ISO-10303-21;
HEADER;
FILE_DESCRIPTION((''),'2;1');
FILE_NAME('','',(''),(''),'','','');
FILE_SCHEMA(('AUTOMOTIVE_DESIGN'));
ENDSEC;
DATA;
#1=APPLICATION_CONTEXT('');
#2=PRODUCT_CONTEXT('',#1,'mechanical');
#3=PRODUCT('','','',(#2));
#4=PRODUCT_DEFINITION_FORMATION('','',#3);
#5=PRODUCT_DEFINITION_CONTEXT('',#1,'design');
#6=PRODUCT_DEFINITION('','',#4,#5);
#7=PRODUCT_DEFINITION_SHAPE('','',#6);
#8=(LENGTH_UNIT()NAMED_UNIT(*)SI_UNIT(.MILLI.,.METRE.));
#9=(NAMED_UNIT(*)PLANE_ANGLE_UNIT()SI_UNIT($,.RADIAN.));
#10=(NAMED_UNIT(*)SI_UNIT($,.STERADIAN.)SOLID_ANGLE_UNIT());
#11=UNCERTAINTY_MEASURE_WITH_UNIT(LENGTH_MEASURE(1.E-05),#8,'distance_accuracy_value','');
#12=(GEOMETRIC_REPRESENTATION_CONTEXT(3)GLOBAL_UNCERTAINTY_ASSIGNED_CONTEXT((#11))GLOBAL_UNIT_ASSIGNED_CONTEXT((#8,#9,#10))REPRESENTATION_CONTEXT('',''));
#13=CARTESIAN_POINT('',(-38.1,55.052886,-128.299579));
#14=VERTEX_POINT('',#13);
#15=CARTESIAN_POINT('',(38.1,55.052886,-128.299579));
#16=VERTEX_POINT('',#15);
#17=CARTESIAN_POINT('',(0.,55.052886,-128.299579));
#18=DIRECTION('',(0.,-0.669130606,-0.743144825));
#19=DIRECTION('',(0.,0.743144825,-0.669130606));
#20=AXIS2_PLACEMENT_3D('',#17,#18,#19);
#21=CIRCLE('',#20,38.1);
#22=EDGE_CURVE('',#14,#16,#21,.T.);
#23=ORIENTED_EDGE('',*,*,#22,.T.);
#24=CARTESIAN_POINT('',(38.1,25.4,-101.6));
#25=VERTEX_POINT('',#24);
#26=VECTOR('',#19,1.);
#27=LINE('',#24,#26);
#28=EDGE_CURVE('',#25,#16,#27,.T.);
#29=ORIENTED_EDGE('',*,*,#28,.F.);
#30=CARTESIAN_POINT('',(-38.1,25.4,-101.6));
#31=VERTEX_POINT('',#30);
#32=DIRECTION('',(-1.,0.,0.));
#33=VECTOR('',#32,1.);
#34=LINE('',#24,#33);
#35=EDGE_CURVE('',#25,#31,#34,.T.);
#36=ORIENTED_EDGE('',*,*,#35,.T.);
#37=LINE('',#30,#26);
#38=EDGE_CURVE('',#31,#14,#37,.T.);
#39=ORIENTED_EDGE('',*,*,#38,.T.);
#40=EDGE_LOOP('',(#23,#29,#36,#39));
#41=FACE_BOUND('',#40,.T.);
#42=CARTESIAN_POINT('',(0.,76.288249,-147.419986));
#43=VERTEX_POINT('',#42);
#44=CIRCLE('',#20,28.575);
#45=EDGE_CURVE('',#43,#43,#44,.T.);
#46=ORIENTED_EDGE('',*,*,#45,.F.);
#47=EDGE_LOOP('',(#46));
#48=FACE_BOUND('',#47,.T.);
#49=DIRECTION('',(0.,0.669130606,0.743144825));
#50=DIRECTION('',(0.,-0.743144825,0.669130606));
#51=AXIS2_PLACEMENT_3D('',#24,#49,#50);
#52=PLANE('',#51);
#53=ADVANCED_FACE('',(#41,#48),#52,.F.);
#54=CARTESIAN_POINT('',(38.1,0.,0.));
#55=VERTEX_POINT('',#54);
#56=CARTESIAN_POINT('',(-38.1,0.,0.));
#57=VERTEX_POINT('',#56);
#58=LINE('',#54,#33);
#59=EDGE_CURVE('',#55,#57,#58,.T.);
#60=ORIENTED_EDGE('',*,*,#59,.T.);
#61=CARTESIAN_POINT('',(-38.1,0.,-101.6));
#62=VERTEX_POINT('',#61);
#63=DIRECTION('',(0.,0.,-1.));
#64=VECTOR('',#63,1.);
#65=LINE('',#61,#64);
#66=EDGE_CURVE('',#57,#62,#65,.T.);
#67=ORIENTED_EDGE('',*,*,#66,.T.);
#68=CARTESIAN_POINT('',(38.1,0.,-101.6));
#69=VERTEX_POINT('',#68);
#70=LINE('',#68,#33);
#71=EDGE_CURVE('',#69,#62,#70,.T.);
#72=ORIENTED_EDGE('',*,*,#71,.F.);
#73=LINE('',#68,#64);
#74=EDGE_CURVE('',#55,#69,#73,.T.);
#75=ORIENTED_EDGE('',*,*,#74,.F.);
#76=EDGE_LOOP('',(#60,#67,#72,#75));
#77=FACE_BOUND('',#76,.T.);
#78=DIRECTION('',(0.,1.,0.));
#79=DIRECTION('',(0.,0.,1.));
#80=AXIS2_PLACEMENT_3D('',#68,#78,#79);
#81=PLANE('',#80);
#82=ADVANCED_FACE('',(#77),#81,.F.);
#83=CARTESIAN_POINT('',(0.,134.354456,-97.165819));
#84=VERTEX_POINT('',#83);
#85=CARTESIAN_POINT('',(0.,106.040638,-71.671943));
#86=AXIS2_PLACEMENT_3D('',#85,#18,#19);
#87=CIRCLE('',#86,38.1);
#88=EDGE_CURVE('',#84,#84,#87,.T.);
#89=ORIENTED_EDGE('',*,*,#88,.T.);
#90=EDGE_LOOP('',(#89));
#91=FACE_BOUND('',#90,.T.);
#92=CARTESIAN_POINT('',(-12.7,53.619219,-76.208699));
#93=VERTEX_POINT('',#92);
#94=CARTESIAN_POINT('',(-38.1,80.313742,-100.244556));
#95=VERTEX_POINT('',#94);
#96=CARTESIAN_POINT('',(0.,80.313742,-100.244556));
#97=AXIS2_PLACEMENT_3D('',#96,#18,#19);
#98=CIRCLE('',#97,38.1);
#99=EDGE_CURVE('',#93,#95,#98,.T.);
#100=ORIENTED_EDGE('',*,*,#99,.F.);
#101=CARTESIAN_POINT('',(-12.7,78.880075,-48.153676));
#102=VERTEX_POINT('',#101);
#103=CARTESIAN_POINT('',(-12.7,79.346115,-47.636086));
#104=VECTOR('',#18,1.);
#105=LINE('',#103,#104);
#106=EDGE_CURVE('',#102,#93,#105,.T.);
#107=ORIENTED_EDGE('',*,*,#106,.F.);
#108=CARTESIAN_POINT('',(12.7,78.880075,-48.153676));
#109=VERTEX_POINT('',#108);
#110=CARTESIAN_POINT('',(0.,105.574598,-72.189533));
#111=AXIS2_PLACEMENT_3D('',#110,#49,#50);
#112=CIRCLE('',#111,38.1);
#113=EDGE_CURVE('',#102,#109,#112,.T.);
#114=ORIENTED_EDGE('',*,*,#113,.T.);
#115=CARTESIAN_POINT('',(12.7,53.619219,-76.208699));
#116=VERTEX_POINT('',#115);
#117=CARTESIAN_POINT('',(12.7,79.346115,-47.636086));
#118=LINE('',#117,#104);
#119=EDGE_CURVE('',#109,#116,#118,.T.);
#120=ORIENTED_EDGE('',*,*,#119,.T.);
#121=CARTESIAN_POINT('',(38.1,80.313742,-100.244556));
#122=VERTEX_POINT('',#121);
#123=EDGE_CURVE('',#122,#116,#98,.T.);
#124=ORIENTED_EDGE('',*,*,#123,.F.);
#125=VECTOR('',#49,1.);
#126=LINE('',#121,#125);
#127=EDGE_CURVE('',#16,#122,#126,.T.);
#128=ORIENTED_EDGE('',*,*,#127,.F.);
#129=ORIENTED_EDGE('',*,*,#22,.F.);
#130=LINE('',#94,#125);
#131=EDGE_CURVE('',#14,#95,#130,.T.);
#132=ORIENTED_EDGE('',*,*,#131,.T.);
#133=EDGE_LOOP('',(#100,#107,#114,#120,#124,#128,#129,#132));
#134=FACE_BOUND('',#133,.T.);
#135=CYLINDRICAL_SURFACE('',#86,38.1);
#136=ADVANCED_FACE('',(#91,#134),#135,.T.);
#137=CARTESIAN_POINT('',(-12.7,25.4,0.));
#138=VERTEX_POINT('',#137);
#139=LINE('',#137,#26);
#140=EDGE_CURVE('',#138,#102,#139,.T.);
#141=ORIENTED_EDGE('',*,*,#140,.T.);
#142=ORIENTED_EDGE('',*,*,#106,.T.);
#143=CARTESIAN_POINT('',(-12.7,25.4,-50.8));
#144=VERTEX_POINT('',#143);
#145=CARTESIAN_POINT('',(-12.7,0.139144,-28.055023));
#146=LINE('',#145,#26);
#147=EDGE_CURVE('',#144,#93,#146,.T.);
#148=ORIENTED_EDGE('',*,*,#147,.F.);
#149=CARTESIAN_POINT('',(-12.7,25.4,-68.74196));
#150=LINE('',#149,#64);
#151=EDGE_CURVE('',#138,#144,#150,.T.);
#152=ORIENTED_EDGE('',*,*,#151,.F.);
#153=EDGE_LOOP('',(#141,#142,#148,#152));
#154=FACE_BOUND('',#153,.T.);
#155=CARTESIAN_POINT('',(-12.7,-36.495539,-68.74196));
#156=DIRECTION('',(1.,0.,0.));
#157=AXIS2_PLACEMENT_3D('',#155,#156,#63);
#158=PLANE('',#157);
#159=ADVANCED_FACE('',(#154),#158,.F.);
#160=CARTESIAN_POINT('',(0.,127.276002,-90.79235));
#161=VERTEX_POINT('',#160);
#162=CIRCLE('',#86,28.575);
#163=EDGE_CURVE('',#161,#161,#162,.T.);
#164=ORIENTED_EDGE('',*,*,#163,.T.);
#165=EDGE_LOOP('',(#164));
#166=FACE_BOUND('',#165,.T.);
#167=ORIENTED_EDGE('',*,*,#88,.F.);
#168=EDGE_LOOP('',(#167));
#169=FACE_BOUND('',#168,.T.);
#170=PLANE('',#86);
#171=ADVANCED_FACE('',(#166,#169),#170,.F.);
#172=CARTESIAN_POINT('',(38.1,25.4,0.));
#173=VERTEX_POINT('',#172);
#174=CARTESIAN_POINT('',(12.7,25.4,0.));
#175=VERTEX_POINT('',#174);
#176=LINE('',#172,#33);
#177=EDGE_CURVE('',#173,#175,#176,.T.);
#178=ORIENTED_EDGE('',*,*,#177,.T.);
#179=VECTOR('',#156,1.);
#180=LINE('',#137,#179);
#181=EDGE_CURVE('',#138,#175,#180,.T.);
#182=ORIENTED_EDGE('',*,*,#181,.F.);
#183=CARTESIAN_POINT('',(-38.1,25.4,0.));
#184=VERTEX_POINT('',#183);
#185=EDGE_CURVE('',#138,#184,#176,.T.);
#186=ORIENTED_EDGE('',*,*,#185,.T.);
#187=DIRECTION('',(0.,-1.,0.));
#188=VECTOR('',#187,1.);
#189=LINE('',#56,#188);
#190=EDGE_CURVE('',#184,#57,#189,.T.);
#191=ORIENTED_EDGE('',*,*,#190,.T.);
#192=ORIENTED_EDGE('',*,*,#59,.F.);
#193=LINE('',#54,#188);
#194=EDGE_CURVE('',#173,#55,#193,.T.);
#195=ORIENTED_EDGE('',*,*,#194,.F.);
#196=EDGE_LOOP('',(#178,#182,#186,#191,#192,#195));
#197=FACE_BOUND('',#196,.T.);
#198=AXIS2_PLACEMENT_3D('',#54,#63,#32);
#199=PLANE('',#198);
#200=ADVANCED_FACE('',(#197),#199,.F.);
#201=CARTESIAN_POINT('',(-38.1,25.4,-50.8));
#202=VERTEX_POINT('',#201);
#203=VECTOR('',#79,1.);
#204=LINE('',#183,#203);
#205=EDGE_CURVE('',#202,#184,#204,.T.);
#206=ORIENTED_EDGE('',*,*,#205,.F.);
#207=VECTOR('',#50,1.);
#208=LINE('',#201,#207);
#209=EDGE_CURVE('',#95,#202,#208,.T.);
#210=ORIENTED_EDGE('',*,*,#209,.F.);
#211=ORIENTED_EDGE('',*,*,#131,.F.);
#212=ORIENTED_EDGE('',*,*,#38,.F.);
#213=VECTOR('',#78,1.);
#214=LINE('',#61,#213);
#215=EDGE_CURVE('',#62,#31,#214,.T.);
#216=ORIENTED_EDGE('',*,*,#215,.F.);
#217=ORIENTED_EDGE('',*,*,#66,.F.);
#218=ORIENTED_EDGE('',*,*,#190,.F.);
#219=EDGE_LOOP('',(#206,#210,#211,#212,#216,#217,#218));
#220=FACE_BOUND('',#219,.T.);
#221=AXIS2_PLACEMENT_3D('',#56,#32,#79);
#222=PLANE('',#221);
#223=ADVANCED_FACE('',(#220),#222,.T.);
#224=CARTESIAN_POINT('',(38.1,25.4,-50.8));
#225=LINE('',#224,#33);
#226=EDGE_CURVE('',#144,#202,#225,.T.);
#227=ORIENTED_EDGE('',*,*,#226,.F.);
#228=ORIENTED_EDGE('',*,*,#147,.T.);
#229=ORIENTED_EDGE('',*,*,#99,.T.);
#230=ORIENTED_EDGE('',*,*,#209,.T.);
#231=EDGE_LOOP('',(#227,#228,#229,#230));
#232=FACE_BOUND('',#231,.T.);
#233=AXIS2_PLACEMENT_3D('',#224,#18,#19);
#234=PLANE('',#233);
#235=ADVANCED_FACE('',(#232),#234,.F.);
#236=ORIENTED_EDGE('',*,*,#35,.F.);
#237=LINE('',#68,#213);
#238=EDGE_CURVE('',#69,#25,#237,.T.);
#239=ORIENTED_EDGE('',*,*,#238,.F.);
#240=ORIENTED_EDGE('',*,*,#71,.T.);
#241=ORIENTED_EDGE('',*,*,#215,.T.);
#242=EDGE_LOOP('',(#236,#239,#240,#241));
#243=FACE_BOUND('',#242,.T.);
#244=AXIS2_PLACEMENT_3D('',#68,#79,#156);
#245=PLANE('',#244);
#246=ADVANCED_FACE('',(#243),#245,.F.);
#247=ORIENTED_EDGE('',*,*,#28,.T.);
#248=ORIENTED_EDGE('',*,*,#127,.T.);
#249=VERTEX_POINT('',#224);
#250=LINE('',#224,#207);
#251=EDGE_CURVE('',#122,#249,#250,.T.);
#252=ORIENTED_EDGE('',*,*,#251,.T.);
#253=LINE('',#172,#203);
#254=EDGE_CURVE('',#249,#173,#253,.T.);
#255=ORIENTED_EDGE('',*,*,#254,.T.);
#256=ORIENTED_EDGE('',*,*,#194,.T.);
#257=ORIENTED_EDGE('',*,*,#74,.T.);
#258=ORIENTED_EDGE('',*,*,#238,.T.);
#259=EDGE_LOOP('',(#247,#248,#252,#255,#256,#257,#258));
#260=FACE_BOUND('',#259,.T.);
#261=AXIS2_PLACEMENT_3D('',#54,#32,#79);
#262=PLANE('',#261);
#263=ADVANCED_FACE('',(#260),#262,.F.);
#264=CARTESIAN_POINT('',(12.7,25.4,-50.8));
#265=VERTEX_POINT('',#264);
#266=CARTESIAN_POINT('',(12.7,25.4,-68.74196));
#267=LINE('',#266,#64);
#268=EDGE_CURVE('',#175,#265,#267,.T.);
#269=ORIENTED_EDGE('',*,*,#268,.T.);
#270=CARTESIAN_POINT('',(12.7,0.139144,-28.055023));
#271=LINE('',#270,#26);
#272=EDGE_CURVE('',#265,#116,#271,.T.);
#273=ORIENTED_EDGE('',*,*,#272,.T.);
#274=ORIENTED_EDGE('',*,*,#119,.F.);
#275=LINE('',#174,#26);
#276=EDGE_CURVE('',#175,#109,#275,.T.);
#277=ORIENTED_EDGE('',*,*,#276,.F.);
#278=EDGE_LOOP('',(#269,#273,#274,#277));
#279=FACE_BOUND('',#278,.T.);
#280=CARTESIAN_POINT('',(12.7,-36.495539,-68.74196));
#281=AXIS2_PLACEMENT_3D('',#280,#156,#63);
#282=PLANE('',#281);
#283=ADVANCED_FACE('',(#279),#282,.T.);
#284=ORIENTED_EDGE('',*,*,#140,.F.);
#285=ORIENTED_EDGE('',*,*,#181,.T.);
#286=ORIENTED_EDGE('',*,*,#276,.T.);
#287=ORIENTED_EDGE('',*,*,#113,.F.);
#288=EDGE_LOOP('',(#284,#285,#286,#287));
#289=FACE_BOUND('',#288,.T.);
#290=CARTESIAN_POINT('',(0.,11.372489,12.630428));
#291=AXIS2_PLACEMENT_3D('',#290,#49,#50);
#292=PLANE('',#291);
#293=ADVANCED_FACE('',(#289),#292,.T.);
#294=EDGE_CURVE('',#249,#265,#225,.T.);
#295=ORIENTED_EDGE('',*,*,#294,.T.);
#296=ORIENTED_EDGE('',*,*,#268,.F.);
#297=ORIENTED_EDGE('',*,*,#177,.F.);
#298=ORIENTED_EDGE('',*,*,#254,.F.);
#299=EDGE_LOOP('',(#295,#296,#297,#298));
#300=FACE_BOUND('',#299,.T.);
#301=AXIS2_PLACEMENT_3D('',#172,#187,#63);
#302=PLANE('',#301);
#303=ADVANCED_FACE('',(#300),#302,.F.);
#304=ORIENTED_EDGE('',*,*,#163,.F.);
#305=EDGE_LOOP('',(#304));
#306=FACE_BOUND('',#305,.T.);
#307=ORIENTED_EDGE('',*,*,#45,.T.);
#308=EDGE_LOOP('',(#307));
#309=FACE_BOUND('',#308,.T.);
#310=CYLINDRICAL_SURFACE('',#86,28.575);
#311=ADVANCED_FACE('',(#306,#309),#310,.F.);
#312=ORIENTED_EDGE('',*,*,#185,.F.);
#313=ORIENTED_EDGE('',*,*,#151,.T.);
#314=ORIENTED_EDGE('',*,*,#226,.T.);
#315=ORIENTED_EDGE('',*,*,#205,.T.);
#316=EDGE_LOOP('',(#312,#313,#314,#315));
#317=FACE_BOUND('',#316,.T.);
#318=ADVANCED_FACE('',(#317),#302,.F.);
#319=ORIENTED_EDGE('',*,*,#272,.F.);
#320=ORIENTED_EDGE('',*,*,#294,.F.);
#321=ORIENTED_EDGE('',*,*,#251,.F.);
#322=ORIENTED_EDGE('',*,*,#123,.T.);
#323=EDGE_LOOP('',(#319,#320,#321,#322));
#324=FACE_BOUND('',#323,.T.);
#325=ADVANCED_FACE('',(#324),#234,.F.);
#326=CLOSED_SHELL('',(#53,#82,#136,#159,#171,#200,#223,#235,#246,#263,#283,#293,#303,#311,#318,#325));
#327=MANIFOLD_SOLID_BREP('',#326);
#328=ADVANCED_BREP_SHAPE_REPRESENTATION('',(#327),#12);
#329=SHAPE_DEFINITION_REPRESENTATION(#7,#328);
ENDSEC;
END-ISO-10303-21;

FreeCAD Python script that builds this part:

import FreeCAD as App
import Part
import Sketcher

V = App.Vector
Q = App.Units.Quantity

doc = App.newDocument("Part")
body = doc.addObject("PartDesign::Body", "Body")

# Sketch on YZ plane
sketch1 = body.newObject("Sketcher::SketchObject", "Sketch")
sketch1.AttachmentSupport = (doc.getObject("YZ_Plane"), [""])
sketch1.MapMode = "FlatFace"
sketch1.addGeometry([
    Part.LineSegment(V(25, 0, 0), V(0, 0, 0)),  # 0
    Part.LineSegment(V(0, 0, 0), V(0, -102, 0)),  # 1
    Part.LineSegment(V(0, -102, 0), V(25, -102, 0)),  # 2
    Part.LineSegment(V(25, -102, 0), V(55, -128, 0)),  # 3
    Part.LineSegment(V(55, -128, 0), V(80, -100, 0)),  # 4
    Part.LineSegment(V(80, -100, 0), V(25, -51, 0)),  # 5
    Part.LineSegment(V(25, -51, 0), V(25, 0, 0)),  # 6
], False)
sketch1.addConstraint([
    Sketcher.Constraint("Coincident", 0, 2, 1, 1),
    Sketcher.Constraint("Coincident", 1, 2, 2, 1),
    Sketcher.Constraint("Coincident", 2, 2, 3, 1),
    Sketcher.Constraint("Coincident", 3, 2, 4, 1),
    Sketcher.Constraint("Coincident", 4, 2, 5, 1),
    Sketcher.Constraint("Coincident", 5, 2, 6, 1),
    Sketcher.Constraint("Coincident", 6, 2, 0, 1),
    Sketcher.Constraint("Horizontal", 0),
    Sketcher.Constraint("Vertical", 1),
    Sketcher.Constraint("Horizontal", 2),
    Sketcher.Constraint("Vertical", 6),
    Sketcher.Constraint("Coincident", 0, 2, -1, 1),
    Sketcher.Constraint("Perpendicular", 3, 4),
    Sketcher.Constraint("Perpendicular", 4, 5),
    Sketcher.Constraint("Vertical", 2, 2, 5, 2),
    Sketcher.Constraint("DistanceX", 0, 2, 0, 1, Q("1 in")),
    Sketcher.Constraint("DistanceY", 1, 2, 1, 1, Q("4 in")),
    Sketcher.Constraint("DistanceY", 6, 1, 6, 2, Q("2 in")),
    Sketcher.Constraint("Angle", 3, Q("-42 deg")),
    Sketcher.Constraint("Distance", 5, 73.893729),
])
pad1 = body.newObject("PartDesign::Pad", "Pad")
pad1.Profile = sketch1
pad1.Length = Q("3 in")
pad1.Midplane = True

# Sketch on an angled plane
sketch2 = body.newObject("Sketcher::SketchObject", "Sketch001")
sketch2.Placement = App.Placement(V(0, 11.372489, 12.630428), App.Rotation(V(1, 0, 0), V(0, 0.743144825, -0.669130606), V(0, 0.669130606, 0.743144825), "ZXY"))
sketch2.addGeometry([
    Part.LineSegment(V(-13, 107, 0), V(-13, 19, 0)),
    Part.LineSegment(V(-13, 19, 0), V(13, 19, 0)),
    Part.LineSegment(V(13, 19, 0), V(13, 107, 0)),
    Part.LineSegment(V(13, 107, 0), V(-13, 107, 0)),
], False)
sketch2.addConstraint([
    Sketcher.Constraint("Coincident", 0, 2, 1, 1),
    Sketcher.Constraint("Coincident", 1, 2, 2, 1),
    Sketcher.Constraint("Coincident", 2, 2, 3, 1),
    Sketcher.Constraint("Coincident", 3, 2, 0, 1),
    Sketcher.Constraint("Vertical", 0),
    Sketcher.Constraint("Horizontal", 1),
    Sketcher.Constraint("Vertical", 2),
    Sketcher.Constraint("Horizontal", 3),
    Sketcher.Constraint("DistanceX", 1, 1, 1, 2, Q("1 in")),
    Sketcher.Constraint("DistanceX", 0, 2, -1, 1, Q("0.5 in")),
    Sketcher.Constraint("DistanceY", 0, 2, 0, 1, 88.16115),
    Sketcher.Constraint("DistanceY", -1, 1, 0, 2, 18.875879),
])
pad2 = body.newObject("PartDesign::Pad", "Pad001")
pad2.Profile = sketch2
pad2.Type = "UpToFirst"
pad2.Reversed = True

# Sketch on an angled plane
sketch3 = body.newObject("Sketcher::SketchObject", "Sketch002")
sketch3.Placement = App.Placement(V(0, -39.149224, -43.479618), App.Rotation(V(-1, 0, 0), V(0, 0.743144825, -0.669130606), V(0, -0.669130606, -0.743144825), "ZXY"))
sketch3.addGeometry(Part.Circle(V(0, 127, 0), V(0, 0, 1), 38), False)
sketch3.addConstraint([
    Sketcher.Constraint("PointOnObject", 0, 3, -2),
    Sketcher.Constraint("Diameter", 0, Q("3 in")),
    Sketcher.Constraint("DistanceY", -1, 1, 0, 3, 126.761442),
])
pad3 = body.newObject("PartDesign::Pad", "Pad002")
pad3.Profile = sketch3
pad3.Length = Q("3 in")
pad3.Reversed = True

# Sketch on an angled plane
sketch4 = body.newObject("Sketcher::SketchObject", "Sketch003")
sketch4.Placement = App.Placement(V(0, -39.149224, -43.479618), App.Rotation(V(-1, 0, 0), V(0, 0.743144825, -0.669130606), V(0, -0.669130606, -0.743144825), "ZXY"))
sketch4.addGeometry(Part.Circle(V(0, 127, 0), V(0, 0, 1), 29), False)
sketch4.addConstraint([
    Sketcher.Constraint("PointOnObject", 0, 3, -2),
    Sketcher.Constraint("Diameter", 0, Q("2.25 in")),
    Sketcher.Constraint("DistanceY", -1, 1, 0, 3, 126.761442),
])
pocket1 = body.newObject("PartDesign::Pocket", "Pocket")
pocket1.Profile = sketch4
pocket1.Length = Q("3 in")

doc.recompute()
